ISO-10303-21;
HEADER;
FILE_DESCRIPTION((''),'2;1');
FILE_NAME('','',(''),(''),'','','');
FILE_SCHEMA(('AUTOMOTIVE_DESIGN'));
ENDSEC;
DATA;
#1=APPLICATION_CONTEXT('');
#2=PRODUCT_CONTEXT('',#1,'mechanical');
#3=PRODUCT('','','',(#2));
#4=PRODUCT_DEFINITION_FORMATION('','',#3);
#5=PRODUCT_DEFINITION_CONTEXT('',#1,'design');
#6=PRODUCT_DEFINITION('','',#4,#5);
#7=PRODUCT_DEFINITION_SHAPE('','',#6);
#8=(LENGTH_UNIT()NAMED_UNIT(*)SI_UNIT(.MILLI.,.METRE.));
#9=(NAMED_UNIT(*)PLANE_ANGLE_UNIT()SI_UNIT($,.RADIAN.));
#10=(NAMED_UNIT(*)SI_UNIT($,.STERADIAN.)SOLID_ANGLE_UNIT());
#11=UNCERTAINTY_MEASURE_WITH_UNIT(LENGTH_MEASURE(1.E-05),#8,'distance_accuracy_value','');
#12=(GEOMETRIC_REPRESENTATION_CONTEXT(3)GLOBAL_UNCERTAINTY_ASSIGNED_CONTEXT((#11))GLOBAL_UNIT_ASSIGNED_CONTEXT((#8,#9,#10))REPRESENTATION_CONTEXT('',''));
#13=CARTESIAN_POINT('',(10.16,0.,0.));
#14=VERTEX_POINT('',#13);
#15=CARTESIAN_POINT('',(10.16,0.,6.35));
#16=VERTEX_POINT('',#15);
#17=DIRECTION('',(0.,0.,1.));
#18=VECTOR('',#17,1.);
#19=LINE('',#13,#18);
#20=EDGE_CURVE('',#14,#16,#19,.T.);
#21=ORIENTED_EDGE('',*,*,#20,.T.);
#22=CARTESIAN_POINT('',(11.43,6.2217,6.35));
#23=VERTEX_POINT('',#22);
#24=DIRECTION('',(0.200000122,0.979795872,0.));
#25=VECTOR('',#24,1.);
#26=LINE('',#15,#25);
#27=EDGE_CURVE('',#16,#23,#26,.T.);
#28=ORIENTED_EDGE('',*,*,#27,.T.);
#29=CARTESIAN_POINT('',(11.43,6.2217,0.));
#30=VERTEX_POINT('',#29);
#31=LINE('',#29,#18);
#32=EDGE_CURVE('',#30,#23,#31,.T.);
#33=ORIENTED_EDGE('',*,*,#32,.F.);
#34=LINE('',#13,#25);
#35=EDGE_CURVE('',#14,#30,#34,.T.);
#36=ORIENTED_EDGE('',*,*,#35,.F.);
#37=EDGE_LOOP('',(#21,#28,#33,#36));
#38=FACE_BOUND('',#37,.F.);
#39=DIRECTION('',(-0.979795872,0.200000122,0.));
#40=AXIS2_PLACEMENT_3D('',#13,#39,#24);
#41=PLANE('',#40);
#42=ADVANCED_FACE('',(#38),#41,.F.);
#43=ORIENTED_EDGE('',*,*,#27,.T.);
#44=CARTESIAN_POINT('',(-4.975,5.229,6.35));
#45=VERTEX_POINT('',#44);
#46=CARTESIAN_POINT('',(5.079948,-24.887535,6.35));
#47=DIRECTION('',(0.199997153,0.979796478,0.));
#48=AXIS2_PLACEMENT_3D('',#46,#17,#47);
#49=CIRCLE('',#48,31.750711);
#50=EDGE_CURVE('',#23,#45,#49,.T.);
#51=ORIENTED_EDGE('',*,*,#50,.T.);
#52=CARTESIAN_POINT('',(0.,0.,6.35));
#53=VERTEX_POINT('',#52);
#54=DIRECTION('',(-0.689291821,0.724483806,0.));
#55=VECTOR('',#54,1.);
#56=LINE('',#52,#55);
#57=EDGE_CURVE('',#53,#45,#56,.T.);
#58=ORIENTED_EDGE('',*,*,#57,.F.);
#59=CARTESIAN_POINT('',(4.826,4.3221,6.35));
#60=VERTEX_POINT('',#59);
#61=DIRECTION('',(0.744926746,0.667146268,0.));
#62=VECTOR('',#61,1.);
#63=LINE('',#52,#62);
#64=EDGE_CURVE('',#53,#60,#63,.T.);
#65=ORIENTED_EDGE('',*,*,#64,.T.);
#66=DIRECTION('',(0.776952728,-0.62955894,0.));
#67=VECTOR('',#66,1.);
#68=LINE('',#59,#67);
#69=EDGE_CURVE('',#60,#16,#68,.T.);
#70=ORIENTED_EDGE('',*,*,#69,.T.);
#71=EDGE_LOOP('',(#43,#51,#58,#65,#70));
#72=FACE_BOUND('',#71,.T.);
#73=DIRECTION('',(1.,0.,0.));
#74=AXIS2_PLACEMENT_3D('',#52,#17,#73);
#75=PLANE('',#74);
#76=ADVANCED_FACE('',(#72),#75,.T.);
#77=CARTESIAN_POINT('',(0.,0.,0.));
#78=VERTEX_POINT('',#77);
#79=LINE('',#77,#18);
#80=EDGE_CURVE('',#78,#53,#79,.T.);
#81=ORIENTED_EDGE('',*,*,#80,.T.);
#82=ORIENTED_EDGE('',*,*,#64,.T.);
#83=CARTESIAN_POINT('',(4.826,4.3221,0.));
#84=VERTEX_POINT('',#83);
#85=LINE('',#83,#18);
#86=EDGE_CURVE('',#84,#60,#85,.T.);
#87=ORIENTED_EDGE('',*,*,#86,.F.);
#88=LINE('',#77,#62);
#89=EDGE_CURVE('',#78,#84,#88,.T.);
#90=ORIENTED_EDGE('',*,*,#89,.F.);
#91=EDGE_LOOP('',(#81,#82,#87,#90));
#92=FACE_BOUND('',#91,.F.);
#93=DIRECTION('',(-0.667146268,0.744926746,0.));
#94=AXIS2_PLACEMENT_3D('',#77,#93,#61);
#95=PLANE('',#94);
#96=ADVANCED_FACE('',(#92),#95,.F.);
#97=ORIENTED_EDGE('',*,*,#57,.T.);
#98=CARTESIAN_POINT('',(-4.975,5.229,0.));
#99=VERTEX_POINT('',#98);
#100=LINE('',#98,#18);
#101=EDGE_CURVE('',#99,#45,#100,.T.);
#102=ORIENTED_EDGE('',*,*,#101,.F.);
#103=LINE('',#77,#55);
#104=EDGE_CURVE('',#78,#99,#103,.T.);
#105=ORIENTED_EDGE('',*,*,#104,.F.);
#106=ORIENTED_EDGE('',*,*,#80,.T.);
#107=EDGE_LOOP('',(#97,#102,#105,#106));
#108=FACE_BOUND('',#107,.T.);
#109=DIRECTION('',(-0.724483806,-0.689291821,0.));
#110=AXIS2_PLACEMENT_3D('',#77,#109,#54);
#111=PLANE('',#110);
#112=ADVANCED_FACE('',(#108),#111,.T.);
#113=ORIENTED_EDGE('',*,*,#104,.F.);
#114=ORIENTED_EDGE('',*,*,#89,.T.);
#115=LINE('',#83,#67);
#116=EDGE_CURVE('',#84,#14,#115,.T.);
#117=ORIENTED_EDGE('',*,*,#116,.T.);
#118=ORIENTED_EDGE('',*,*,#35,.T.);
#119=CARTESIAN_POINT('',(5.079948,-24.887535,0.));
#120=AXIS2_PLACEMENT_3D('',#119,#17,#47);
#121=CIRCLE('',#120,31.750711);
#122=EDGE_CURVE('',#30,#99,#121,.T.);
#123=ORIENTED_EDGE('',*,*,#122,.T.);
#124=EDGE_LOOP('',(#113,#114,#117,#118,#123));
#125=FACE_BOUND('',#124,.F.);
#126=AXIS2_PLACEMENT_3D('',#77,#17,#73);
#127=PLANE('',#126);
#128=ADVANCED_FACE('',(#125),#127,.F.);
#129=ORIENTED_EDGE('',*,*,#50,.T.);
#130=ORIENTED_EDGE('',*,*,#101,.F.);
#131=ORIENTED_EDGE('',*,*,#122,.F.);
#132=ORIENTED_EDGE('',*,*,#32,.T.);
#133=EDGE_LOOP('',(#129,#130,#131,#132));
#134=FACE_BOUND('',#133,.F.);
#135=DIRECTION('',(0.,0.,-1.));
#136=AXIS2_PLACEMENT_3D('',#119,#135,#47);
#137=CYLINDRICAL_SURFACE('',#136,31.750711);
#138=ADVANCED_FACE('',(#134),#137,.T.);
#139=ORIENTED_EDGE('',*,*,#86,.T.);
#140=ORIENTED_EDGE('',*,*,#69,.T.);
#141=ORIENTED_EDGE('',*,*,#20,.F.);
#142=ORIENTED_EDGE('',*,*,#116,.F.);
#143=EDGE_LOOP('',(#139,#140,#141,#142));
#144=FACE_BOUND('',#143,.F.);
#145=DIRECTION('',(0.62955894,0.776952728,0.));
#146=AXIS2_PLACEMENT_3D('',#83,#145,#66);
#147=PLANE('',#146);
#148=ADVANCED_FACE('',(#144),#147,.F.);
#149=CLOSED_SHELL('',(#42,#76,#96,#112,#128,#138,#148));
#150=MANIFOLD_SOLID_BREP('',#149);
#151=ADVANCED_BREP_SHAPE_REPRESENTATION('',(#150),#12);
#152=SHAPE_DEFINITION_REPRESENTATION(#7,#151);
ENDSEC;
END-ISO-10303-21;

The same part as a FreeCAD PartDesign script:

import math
import FreeCAD as App
import Part
import Sketcher
from FreeCAD import Vector
Q = App.Units.Quantity

doc = App.newDocument("Part")
body = doc.addObject("PartDesign::Body", "Body")

# Sketch on XY plane
sketch1 = doc.addObject("Sketcher::SketchObject", "Sketch")
body.addObject(sketch1)
sketch1.AttachmentSupport = (doc.XY_Plane, [""])
sketch1.MapMode = "FlatFace"
sketch1.addGeometry([
    Part.LineSegment(Vector(-5, 5, 0), Vector(0, 0, 0)),  # 0
    Part.LineSegment(Vector(0, 0, 0), Vector(5, 4, 0)),  # 1
    Part.LineSegment(Vector(5, 4, 0), Vector(10, 0, 0)),  # 2
    Part.LineSegment(Vector(10, 0, 0), Vector(11, 6, 0)),  # 3
    Part.ArcOfCircle(Part.Circle(Vector(5, -25, 0), Vector(0, 0, 1), 32), math.radians(78), math.radians(108)),  # 4
], False)
sketch1.addConstraint([
    Sketcher.Constraint("Coincident", 0, 2, 1, 1),
    Sketcher.Constraint("Coincident", 1, 2, 2, 1),
    Sketcher.Constraint("Coincident", 2, 2, 3, 1),
    Sketcher.Constraint("Coincident", 3, 2, 4, 1),
    Sketcher.Constraint("Coincident", 4, 2, 0, 1),
    Sketcher.Constraint("Coincident", 0, 2, -1, 1),
    Sketcher.Constraint("PointOnObject", 2, 2, -1),
    Sketcher.Constraint("Radius", 4, Q("1.25 in")),
    Sketcher.Constraint("DistanceX", -1, 1, 2, 2, Q("0.4 in")),
    Sketcher.Constraint("DistanceX", 1, 2, 2, 2, Q("0.21 in")),
    Sketcher.Constraint("DistanceX", -1, 1, 4, 3, Q("0.2 in")),
    Sketcher.Constraint("Distance", 3, Q("0.25 in")),
    Sketcher.Constraint("DistanceX", -1, 1, 3, 2, Q("0.45 in")),
    Sketcher.Constraint("DistanceY", 1, 2, 4, 2, Q("0.0357 in")),
    Sketcher.Constraint("Distance", 0, 7.2176),
])
pad1 = doc.addObject("PartDesign::Pad", "Pad")
body.addObject(pad1)
pad1.Profile = sketch1
pad1.Length = Q("0.25 in")

doc.recompute()
